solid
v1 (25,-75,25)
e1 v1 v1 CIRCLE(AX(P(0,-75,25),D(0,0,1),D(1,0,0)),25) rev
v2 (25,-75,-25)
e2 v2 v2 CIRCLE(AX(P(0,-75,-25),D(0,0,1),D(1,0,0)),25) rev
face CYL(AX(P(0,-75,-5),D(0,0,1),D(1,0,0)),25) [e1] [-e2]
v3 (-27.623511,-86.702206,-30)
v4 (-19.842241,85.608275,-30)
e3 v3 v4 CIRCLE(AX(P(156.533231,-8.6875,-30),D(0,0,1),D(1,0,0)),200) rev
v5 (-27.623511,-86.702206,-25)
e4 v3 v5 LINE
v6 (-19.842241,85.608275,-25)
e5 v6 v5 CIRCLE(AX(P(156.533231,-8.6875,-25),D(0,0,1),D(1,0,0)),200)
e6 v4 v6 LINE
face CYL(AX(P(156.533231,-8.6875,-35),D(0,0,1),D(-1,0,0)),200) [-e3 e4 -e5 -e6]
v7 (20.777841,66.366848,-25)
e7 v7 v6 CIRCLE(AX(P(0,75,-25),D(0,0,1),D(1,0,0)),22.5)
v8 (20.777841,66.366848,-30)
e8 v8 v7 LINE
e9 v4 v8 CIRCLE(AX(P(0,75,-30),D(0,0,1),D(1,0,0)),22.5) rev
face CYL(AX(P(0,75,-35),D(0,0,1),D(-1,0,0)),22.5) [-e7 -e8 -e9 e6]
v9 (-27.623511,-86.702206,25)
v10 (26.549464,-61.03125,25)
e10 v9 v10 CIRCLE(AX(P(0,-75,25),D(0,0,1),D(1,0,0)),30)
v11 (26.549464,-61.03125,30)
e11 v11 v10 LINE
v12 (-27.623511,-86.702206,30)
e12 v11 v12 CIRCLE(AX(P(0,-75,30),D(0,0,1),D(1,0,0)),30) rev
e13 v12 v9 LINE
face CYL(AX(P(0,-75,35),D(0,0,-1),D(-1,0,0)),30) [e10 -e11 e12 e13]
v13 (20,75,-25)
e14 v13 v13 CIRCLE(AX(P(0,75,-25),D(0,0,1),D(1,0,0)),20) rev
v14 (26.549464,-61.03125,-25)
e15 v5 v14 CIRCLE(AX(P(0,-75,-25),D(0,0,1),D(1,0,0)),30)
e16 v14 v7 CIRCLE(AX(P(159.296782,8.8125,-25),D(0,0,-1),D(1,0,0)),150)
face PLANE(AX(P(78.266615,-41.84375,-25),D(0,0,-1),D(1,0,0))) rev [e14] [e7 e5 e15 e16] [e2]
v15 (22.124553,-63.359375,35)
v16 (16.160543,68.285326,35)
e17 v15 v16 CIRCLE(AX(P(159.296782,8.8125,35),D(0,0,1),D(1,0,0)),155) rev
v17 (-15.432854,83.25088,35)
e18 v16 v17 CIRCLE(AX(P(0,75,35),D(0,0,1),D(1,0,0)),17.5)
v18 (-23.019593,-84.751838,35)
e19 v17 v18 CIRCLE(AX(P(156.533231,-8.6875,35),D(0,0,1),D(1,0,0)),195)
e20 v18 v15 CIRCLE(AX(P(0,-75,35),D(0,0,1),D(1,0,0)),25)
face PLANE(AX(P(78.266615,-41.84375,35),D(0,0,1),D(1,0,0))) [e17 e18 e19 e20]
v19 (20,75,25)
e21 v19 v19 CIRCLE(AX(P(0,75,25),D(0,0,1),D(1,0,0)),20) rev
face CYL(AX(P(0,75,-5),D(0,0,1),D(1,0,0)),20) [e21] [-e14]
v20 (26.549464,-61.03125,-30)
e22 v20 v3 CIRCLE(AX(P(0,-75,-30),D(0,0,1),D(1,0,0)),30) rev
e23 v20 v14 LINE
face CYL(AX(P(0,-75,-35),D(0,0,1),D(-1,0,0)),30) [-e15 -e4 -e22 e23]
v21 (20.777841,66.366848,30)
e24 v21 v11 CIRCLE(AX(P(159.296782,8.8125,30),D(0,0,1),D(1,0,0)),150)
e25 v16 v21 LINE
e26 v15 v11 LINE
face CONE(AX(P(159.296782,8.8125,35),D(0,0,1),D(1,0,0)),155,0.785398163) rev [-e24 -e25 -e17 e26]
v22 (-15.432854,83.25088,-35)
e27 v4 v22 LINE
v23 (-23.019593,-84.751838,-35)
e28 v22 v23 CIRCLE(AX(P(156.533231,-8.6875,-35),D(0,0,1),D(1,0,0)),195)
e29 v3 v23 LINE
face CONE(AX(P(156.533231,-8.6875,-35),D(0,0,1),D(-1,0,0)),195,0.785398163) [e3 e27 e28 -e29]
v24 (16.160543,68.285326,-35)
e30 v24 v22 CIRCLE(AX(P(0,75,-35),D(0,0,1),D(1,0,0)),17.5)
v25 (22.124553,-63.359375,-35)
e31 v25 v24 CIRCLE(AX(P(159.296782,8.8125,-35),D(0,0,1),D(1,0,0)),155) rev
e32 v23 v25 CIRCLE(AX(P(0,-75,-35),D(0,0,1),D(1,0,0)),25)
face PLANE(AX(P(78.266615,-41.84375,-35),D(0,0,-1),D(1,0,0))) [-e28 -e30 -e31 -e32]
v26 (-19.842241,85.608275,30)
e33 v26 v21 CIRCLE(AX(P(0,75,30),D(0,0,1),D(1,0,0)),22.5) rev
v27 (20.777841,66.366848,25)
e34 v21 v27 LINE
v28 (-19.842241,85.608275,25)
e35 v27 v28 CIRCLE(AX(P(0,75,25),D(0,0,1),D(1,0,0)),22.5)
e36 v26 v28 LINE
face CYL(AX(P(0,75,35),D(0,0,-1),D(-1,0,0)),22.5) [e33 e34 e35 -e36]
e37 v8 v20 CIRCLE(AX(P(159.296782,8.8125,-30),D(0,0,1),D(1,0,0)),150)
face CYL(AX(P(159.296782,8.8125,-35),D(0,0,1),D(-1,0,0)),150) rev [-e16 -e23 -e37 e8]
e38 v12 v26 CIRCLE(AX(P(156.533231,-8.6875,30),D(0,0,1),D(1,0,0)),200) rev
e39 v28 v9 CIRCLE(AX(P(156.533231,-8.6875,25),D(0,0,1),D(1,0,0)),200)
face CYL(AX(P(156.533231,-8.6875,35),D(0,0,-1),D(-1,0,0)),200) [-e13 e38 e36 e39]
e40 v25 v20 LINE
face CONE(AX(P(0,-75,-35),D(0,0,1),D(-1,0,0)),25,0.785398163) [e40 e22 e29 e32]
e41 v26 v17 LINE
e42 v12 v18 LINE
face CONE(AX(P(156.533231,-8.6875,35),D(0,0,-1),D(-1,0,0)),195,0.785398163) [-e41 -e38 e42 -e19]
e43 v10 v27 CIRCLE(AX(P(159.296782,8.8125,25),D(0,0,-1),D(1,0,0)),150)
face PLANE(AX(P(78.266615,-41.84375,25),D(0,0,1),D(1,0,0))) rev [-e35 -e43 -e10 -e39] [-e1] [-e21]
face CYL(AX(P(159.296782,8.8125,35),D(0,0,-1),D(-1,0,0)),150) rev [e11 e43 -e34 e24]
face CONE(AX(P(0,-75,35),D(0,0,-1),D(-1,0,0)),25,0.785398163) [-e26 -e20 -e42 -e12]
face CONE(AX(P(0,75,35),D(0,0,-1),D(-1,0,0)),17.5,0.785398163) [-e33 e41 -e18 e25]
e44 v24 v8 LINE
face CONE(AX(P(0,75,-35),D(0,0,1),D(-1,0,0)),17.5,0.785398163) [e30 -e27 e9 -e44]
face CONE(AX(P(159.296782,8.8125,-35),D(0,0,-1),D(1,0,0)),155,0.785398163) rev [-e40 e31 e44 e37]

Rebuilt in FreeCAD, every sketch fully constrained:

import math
import FreeCAD as App
import Part
import Sketcher


def edges_at(feature, points):
    """Names of the edges that pass closest to the given points."""
    edges = feature.Shape.Edges
    near = lambda p: min(range(len(edges)), key=lambda i: edges[i].distToShape(Part.Vertex(*p))[0])
    return sorted({f"Edge{near(p) + 1}" for p in points})

doc = App.newDocument("Part")
body = doc.addObject("PartDesign::Body", "Body")

sketch1 = doc.addObject("Sketcher::SketchObject", "Sketch")
body.addObject(sketch1)
sketch1.AttachmentSupport = (doc.XY_Plane, [""])
sketch1.MapMode = "FlatFace"
sketch1.AttachmentOffset = App.Placement(App.Vector(0, 0, 25), App.Rotation())
sketch1.addGeometry([
    Part.ArcOfCircle(Part.Circle(App.Vector(0, 75, 0), App.Vector(0, 0, 1), 22), math.radians(-23), math.radians(152)),
    Part.ArcOfCircle(Part.Circle(App.Vector(157, -9, 0), App.Vector(0, 0, 1), 200), math.radians(152), math.radians(203)),
    Part.ArcOfCircle(Part.Circle(App.Vector(0, -75, 0), App.Vector(0, 0, 1), 30), math.radians(-157), math.radians(28)),
    Part.ArcOfCircle(Part.Circle(App.Vector(159, 9, 0), App.Vector(0, 0, 1), 150), math.radians(157), math.radians(208)),
], False)
sketch1.addConstraint([
    Sketcher.Constraint("Tangent", 0, 2, 1, 1),
    Sketcher.Constraint("Tangent", 1, 2, 2, 1),
    Sketcher.Constraint("Tangent", 2, 2, 3, 2),
    Sketcher.Constraint("Tangent", 3, 1, 0, 1),
    Sketcher.Constraint("Symmetric", 0, 3, 2, 3, -1, 1),
    Sketcher.Constraint("PointOnObject", 0, 3, -2),
    Sketcher.Constraint("Radius", 1, 200.0),
    Sketcher.Constraint("Radius", 2, 30.0),
    Sketcher.Constraint("Radius", 3, 150.0),
    Sketcher.Constraint("Radius", 0, 22.5),
    Sketcher.Constraint("DistanceY", -1, 1, 0, 3, 75.0),
])
pad1 = doc.addObject("PartDesign::Pad", "Pad")
body.addObject(pad1)
pad1.Profile = sketch1
pad1.Length = 10
doc.recompute()

chamfer = doc.addObject("PartDesign::Chamfer", "Chamfer")
body.addObject(chamfer)
chamfer.Base = (pad1, edges_at(pad1, [
    (9.45, 2.024, 35),
    (9.632, 95.334, 35),
    (-43.263, 0.335, 35),
    (12.847, -102.11, 35),
]))
chamfer.Size = 5

sketch2 = doc.addObject("Sketcher::SketchObject", "Sketch001")
body.addObject(sketch2)
sketch2.AttachmentSupport = (doc.XY_Plane, [""])
sketch2.MapMode = "FlatFace"
sketch2.AttachmentOffset = App.Placement(App.Vector(0, 0, 25), App.Rotation())
sketch2.addGeometry([
    Part.Circle(App.Vector(0, 75, 0), App.Vector(0, 0, 1), 20),
    Part.Circle(App.Vector(0, -75, 0), App.Vector(0, 0, 1), 25),
], False)
sketch2.addConstraint([
    Sketcher.Constraint("Symmetric", 0, 3, 1, 3, -1, 1),
    Sketcher.Constraint("PointOnObject", 0, 3, -2),
    Sketcher.Constraint("Diameter", 0, 40.0),
    Sketcher.Constraint("Diameter", 1, 50.0),
    Sketcher.Constraint("DistanceY", -1, 1, 0, 3, 75.0),
])
pad2 = doc.addObject("PartDesign::Pad", "Pad001")
body.addObject(pad2)
pad2.Profile = sketch2
pad2.Length = 30
pad2.Reversed = True
body2 = doc.addObject("PartDesign::Body", "Body001")
doc.recompute()

body2.BaseFeature = body
doc.recompute()

mirroring = doc.addObject("Part::Mirroring", "Mirroring")
mirroring.Source = body
mirroring.Base = App.Vector(0, 0, 0)
mirroring.Normal = App.Vector(0, 0, 1)
body3 = doc.addObject("PartDesign::Body", "Body002")
body3.BaseFeature = mirroring
boolean = doc.addObject("PartDesign::Boolean", "Boolean")
body2.addObject(boolean)
boolean.Type = "Fuse"
boolean.addObjects([body3])
doc.recompute()
mirroring.Visibility = False

doc.recompute()
